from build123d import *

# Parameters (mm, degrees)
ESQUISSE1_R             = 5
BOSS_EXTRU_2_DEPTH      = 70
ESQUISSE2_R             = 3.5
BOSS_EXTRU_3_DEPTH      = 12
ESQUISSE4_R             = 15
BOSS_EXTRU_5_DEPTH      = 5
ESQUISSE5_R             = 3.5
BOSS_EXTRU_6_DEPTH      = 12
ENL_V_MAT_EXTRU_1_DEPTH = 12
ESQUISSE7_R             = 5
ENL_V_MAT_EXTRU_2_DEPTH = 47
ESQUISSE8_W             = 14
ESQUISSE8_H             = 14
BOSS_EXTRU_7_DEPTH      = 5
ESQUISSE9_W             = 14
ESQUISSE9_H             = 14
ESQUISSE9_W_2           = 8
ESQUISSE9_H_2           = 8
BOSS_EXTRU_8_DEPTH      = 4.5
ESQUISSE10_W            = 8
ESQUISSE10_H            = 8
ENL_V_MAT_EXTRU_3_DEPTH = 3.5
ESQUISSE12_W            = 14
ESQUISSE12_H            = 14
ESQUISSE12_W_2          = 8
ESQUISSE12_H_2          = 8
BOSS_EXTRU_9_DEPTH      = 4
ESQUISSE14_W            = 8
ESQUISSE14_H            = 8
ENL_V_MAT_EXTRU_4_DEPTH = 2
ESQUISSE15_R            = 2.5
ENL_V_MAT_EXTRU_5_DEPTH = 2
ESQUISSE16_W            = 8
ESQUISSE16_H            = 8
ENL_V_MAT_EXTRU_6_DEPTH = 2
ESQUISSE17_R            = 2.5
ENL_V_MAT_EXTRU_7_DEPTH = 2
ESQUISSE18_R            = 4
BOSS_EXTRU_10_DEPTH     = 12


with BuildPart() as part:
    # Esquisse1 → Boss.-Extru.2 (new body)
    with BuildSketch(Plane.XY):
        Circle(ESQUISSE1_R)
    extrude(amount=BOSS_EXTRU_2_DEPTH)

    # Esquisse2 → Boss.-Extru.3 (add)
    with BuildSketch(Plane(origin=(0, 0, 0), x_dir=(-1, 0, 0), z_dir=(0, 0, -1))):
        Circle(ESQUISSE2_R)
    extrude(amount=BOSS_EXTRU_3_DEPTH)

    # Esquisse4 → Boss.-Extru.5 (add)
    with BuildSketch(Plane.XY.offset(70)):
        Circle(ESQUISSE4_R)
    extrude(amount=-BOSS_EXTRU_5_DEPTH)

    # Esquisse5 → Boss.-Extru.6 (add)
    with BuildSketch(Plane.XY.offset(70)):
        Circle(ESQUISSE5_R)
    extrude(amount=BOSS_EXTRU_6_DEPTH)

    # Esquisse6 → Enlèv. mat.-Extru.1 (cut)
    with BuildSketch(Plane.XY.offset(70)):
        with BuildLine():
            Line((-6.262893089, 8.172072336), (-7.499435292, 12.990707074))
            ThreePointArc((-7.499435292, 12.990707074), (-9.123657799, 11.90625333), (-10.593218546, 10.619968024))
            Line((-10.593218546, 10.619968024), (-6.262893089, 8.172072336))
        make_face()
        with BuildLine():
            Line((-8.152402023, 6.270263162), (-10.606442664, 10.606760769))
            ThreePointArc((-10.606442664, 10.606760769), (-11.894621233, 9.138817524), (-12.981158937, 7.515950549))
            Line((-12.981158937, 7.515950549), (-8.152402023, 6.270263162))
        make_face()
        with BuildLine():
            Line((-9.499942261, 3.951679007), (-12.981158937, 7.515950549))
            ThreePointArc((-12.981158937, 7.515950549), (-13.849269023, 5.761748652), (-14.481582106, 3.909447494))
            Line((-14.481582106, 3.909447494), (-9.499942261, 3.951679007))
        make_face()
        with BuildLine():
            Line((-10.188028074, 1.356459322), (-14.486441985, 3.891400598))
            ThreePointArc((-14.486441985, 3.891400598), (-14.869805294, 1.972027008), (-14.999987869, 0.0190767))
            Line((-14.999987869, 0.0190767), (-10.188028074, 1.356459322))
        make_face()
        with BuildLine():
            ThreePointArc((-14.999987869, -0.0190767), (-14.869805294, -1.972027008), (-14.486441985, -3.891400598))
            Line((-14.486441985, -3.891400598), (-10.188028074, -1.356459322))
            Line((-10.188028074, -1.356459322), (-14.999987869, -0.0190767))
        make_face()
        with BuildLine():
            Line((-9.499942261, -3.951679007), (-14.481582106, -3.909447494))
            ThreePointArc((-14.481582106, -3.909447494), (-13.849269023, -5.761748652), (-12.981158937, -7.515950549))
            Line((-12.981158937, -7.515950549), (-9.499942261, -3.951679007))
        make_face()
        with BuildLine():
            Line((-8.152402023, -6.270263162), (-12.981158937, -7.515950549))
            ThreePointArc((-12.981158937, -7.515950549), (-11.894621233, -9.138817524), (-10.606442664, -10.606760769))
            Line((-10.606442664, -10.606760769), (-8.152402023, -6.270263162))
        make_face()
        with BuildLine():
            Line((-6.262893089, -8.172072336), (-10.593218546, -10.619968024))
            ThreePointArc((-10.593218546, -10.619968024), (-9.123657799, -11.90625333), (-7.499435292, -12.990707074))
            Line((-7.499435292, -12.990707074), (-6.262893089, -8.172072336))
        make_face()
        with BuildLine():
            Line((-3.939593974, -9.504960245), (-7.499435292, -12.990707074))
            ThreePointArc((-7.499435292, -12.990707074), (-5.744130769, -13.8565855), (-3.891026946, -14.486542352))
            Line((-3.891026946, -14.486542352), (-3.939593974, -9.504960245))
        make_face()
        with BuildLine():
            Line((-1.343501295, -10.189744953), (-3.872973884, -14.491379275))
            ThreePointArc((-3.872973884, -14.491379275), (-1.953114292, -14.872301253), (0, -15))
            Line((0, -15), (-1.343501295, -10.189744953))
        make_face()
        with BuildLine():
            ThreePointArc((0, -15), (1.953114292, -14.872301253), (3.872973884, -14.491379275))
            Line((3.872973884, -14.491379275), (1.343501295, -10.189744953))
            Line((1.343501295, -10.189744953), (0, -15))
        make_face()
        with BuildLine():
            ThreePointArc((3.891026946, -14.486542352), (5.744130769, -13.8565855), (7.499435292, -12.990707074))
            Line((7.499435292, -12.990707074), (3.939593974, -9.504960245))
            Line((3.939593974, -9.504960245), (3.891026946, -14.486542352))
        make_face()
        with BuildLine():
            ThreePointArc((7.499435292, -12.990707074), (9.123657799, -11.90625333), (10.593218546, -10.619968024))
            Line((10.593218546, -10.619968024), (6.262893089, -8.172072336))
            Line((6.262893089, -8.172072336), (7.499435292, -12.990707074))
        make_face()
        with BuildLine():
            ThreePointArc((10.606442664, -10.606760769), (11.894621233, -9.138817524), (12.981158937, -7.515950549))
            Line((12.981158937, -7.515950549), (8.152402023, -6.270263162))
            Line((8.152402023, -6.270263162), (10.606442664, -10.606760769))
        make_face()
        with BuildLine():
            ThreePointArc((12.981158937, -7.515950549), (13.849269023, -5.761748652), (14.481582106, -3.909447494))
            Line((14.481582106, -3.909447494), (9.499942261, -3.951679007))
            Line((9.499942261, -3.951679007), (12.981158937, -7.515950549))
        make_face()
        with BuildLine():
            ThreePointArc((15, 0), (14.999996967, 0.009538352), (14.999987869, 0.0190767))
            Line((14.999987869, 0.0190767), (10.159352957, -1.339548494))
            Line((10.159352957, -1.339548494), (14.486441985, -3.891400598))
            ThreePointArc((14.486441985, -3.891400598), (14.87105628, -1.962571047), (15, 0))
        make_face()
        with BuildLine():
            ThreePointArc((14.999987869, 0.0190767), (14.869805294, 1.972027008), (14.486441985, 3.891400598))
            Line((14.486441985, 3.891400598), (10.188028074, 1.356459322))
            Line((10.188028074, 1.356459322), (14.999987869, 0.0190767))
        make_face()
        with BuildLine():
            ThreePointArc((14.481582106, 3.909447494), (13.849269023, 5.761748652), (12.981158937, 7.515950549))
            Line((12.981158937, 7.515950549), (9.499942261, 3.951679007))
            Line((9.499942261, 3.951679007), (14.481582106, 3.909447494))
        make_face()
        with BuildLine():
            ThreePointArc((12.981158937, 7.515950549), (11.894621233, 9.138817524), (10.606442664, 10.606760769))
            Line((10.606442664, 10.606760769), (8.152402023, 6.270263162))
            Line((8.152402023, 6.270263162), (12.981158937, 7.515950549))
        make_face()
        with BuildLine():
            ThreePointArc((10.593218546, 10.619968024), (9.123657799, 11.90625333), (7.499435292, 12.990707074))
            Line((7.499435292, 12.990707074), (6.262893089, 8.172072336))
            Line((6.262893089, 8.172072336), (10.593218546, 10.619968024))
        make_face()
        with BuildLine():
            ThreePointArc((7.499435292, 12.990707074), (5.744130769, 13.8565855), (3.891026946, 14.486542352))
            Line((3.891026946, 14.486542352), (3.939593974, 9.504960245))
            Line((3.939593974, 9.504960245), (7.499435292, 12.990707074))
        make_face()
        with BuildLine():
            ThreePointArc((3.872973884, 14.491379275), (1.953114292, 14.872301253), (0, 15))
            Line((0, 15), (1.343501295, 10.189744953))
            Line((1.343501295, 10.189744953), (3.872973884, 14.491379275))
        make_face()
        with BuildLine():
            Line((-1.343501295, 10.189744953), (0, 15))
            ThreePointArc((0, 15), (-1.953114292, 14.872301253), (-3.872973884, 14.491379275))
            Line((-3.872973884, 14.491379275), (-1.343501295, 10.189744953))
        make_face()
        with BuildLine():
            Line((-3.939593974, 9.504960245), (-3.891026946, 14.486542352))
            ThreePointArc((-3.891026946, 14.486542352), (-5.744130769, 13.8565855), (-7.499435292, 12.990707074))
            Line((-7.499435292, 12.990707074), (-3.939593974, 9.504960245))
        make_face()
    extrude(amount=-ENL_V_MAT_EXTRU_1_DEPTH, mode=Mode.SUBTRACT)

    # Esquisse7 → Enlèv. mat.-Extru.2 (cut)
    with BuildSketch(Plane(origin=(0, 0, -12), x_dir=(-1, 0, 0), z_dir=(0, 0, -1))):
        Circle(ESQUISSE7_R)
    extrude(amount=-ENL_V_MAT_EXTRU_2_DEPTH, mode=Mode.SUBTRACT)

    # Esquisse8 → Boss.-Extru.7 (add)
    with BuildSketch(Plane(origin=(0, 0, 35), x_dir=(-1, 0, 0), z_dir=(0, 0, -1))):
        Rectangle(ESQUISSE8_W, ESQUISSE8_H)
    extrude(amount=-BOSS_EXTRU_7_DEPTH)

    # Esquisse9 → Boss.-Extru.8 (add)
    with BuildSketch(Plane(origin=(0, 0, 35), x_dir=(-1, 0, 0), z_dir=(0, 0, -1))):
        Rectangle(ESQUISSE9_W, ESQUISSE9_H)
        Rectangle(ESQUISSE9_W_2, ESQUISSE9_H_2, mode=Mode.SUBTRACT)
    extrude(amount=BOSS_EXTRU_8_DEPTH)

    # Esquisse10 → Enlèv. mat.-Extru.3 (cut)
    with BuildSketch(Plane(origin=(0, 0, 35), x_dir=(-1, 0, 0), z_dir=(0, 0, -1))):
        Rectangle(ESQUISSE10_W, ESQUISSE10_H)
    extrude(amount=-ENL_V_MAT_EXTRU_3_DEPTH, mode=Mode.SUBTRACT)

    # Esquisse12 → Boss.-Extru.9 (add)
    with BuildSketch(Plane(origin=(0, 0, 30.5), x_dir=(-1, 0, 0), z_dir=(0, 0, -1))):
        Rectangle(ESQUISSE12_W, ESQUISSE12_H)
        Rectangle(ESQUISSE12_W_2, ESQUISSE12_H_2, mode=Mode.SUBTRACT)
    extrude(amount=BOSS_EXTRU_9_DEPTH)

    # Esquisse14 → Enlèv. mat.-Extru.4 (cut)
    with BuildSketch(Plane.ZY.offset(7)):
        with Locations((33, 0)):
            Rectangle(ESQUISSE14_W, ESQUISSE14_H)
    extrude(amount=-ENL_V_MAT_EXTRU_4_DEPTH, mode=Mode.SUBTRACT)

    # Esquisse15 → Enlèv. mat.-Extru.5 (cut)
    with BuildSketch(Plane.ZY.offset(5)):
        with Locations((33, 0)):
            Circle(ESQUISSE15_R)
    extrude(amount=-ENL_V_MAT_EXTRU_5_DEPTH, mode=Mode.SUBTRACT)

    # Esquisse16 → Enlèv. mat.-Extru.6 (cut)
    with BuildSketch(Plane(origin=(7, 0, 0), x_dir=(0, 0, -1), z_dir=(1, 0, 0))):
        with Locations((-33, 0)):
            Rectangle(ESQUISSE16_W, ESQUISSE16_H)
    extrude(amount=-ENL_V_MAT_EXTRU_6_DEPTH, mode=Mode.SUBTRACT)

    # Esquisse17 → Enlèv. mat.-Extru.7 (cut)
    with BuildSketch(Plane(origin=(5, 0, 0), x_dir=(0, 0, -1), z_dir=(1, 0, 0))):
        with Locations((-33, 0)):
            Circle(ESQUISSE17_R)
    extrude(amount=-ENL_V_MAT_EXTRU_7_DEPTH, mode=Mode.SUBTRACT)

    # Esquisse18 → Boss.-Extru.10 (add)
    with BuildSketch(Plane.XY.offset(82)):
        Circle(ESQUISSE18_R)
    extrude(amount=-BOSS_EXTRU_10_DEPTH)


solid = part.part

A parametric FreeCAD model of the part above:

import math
import FreeCAD as App
import Part
import Sketcher
from FreeCAD import Vector


def add_polygon(sketch, points):
    """Adds a closed chain of lines whose ends are joined by coincident constraints."""
    first, n = sketch.GeometryCount, len(points)
    for a, b in zip(points, points[1:] + points[:1]):
        sketch.addGeometry(Part.LineSegment(App.Vector(*a, 0), App.Vector(*b, 0)), False)
    for i in range(n):
        sketch.addConstraint(Sketcher.Constraint("Coincident", first + i, 2, first + (i + 1) % n, 1))

doc = App.newDocument("Part")
body = doc.addObject("PartDesign::Body", "Body")

# Sketch on XY plane
sketch1 = doc.addObject("Sketcher::SketchObject", "Sketch")
body.addObject(sketch1)
sketch1.AttachmentSupport = (doc.XY_Plane, [""])
sketch1.MapMode = "FlatFace"
sketch1.addGeometry(Part.Circle(Vector(0, 0, 0), Vector(0, 0, 1), 5), False)
sketch1.addConstraint(Sketcher.Constraint("Coincident", 0, 3, -1, 1))
sketch1.addConstraint(Sketcher.Constraint("Diameter", 0, 10.0))
pad1 = doc.addObject("PartDesign::Pad", "Pad")
body.addObject(pad1)
pad1.Profile = sketch1
pad1.Length = 70

# Sketch on XY plane
sketch2 = doc.addObject("Sketcher::SketchObject", "Sketch001")
body.addObject(sketch2)
sketch2.AttachmentSupport = (doc.XY_Plane, [""])
sketch2.MapMode = "FlatFace"
sketch2.addGeometry(Part.Circle(Vector(0, 0, 0), Vector(0, 0, 1), 3.5), False)
sketch2.addConstraint(Sketcher.Constraint("Coincident", 0, 3, -1, 1))
sketch2.addConstraint(Sketcher.Constraint("Diameter", 0, 7.0))
pad2 = doc.addObject("PartDesign::Pad", "Pad001")
body.addObject(pad2)
pad2.Profile = sketch2
pad2.Length = 12
pad2.Reversed = True

# Sketch on XY plane
sketch3 = doc.addObject("Sketcher::SketchObject", "Sketch002")
body.addObject(sketch3)
sketch3.AttachmentSupport = (doc.XY_Plane, [""])
sketch3.MapMode = "FlatFace"
sketch3.AttachmentOffset = App.Placement(Vector(0, 0, 70), App.Rotation())
sketch3.addGeometry(Part.Circle(Vector(0, 0, 0), Vector(0, 0, 1), 15), False)
sketch3.addConstraint(Sketcher.Constraint("Coincident", 0, 3, -1, 1))
sketch3.addConstraint(Sketcher.Constraint("Diameter", 0, 30.0))
pad3 = doc.addObject("PartDesign::Pad", "Pad002")
body.addObject(pad3)
pad3.Profile = sketch3
pad3.Length = 5
pad3.Reversed = True

# Sketch on XY plane
sketch4 = doc.addObject("Sketcher::SketchObject", "Sketch003")
body.addObject(sketch4)
sketch4.AttachmentSupport = (doc.XY_Plane, [""])
sketch4.MapMode = "FlatFace"
sketch4.AttachmentOffset = App.Placement(Vector(0, 0, 70), App.Rotation())
sketch4.addGeometry(Part.Circle(Vector(0, 0, 0), Vector(0, 0, 1), 3.5), False)
sketch4.addConstraint(Sketcher.Constraint("Coincident", 0, 3, -1, 1))
sketch4.addConstraint(Sketcher.Constraint("Diameter", 0, 7.0))
pad4 = doc.addObject("PartDesign::Pad", "Pad003")
body.addObject(pad4)
pad4.Profile = sketch4
pad4.Length = 12

# Sketch on XY plane
sketch5 = doc.addObject("Sketcher::SketchObject", "Sketch004")
body.addObject(sketch5)
sketch5.AttachmentSupport = (doc.XY_Plane, [""])
sketch5.MapMode = "FlatFace"
sketch5.AttachmentOffset = App.Placement(Vector(0, 0, 70), App.Rotation())
sketch5.addGeometry(Part.LineSegment(Vector(-6.263, 8.172, 0), Vector(-7.499, 12.991, 0)), False)
sketch5.addGeometry(Part.ArcOfCircle(Part.Circle(Vector(0, 0, 0), Vector(0, 0, 1), 15), math.radians(120), math.radians(134.93)), False)
sketch5.addGeometry(Part.LineSegment(Vector(-10.593, 10.62, 0), Vector(-6.263, 8.172, 0)), False)
sketch5.addGeometry(Part.LineSegment(Vector(-8.152, 6.27, 0), Vector(-10.606, 10.607, 0)), False)
sketch5.addGeometry(Part.ArcOfCircle(Part.Circle(Vector(0, 0, 0), Vector(0, 0, 1), 15), math.radians(135), math.radians(149.93)), False)
sketch5.addGeometry(Part.LineSegment(Vector(-12.981, 7.516, 0), Vector(-8.152, 6.27, 0)), False)
sketch5.addGeometry(Part.LineSegment(Vector(-9.5, 3.952, 0), Vector(-12.981, 7.516, 0)), False)
sketch5.addGeometry(Part.ArcOfCircle(Part.Circle(Vector(0, 0, 0), Vector(0, 0, 1), 15), math.radians(149.93), math.radians(164.89)), False)
sketch5.addGeometry(Part.LineSegment(Vector(-14.482, 3.909, 0), Vector(-9.5, 3.952, 0)), False)
sketch5.addGeometry(Part.LineSegment(Vector(-10.188, 1.356, 0), Vector(-14.486, 3.891, 0)), False)
sketch5.addGeometry(Part.ArcOfCircle(Part.Circle(Vector(0, 0, 0), Vector(0, 0, 1), 15), math.radians(164.96), math.radians(179.93)), False)
sketch5.addGeometry(Part.LineSegment(Vector(-15, 0.019, 0), Vector(-10.188, 1.356, 0)), False)
sketch5.addGeometry(Part.ArcOfCircle(Part.Circle(Vector(0, 0, 0), Vector(0, 0, 1), 15), math.radians(-179.93), math.radians(-164.96)), False)
sketch5.addGeometry(Part.LineSegment(Vector(-14.486, -3.891, 0), Vector(-10.188, -1.356, 0)), False)
sketch5.addGeometry(Part.LineSegment(Vector(-10.188, -1.356, 0), Vector(-15, -0.019, 0)), False)
sketch5.addGeometry(Part.LineSegment(Vector(-9.5, -3.952, 0), Vector(-14.482, -3.909, 0)), False)
sketch5.addGeometry(Part.ArcOfCircle(Part.Circle(Vector(0, 0, 0), Vector(0, 0, 1), 15), math.radians(-164.89), math.radians(-149.93)), False)
sketch5.addGeometry(Part.LineSegment(Vector(-12.981, -7.516, 0), Vector(-9.5, -3.952, 0)), False)
sketch5.addGeometry(Part.LineSegment(Vector(-8.152, -6.27, 0), Vector(-12.981, -7.516, 0)), False)
sketch5.addGeometry(Part.ArcOfCircle(Part.Circle(Vector(0, 0, 0), Vector(0, 0, 1), 15), math.radians(-149.93), math.radians(-135)), False)
sketch5.addGeometry(Part.LineSegment(Vector(-10.606, -10.607, 0), Vector(-8.152, -6.27, 0)), False)
sketch5.addGeometry(Part.LineSegment(Vector(-6.263, -8.172, 0), Vector(-10.593, -10.62, 0)), False)
sketch5.addGeometry(Part.ArcOfCircle(Part.Circle(Vector(0, 0, 0), Vector(0, 0, 1), 15), math.radians(-134.93), math.radians(-120)), False)
sketch5.addGeometry(Part.LineSegment(Vector(-7.499, -12.991, 0), Vector(-6.263, -8.172, 0)), False)
sketch5.addGeometry(Part.LineSegment(Vector(-3.94, -9.505, 0), Vector(-7.499, -12.991, 0)), False)
sketch5.addGeometry(Part.ArcOfCircle(Part.Circle(Vector(0, 0, 0), Vector(0, 0, 1), 15), math.radians(-120), math.radians(-105.03)), False)
sketch5.addGeometry(Part.LineSegment(Vector(-3.891, -14.487, 0), Vector(-3.94, -9.505, 0)), False)
sketch5.addGeometry(Part.LineSegment(Vector(-1.344, -10.19, 0), Vector(-3.873, -14.491, 0)), False)
sketch5.addGeometry(Part.ArcOfCircle(Part.Circle(Vector(0, 0, 0), Vector(0, 0, 1), 15), math.radians(-104.96), math.radians(-90)), False)
sketch5.addGeometry(Part.LineSegment(Vector(0, -15, 0), Vector(-1.344, -10.19, 0)), False)
sketch5.addGeometry(Part.ArcOfCircle(Part.Circle(Vector(0, 0, 0), Vector(0, 0, 1), 15), math.radians(-90), math.radians(-75.04)), False)
sketch5.addGeometry(Part.LineSegment(Vector(3.873, -14.491, 0), Vector(1.344, -10.19, 0)), False)
sketch5.addGeometry(Part.LineSegment(Vector(1.344, -10.19, 0), Vector(0, -15, 0)), False)
sketch5.addGeometry(Part.ArcOfCircle(Part.Circle(Vector(0, 0, 0), Vector(0, 0, 1), 15), math.radians(-74.97), math.radians(-60)), False)
sketch5.addGeometry(Part.LineSegment(Vector(7.499, -12.991, 0), Vector(3.94, -9.505, 0)), False)
sketch5.addGeometry(Part.LineSegment(Vector(3.94, -9.505, 0), Vector(3.891, -14.487, 0)), False)
sketch5.addGeometry(Part.ArcOfCircle(Part.Circle(Vector(0, 0, 0), Vector(0, 0, 1), 15), math.radians(-60), math.radians(-45.07)), False)
sketch5.addGeometry(Part.LineSegment(Vector(10.593, -10.62, 0), Vector(6.263, -8.172, 0)), False)
sketch5.addGeometry(Part.LineSegment(Vector(6.263, -8.172, 0), Vector(7.499, -12.991, 0)), False)
sketch5.addGeometry(Part.ArcOfCircle(Part.Circle(Vector(0, 0, 0), Vector(0, 0, 1), 15), math.radians(-45), math.radians(-30.07)), False)
sketch5.addGeometry(Part.LineSegment(Vector(12.981, -7.516, 0), Vector(8.152, -6.27, 0)), False)
sketch5.addGeometry(Part.LineSegment(Vector(8.152, -6.27, 0), Vector(10.606, -10.607, 0)), False)
sketch5.addGeometry(Part.ArcOfCircle(Part.Circle(Vector(0, 0, 0), Vector(0, 0, 1), 15), math.radians(-30.07), math.radians(-15.11)), False)
sketch5.addGeometry(Part.LineSegment(Vector(14.482, -3.909, 0), Vector(9.5, -3.952, 0)), False)
sketch5.addGeometry(Part.LineSegment(Vector(9.5, -3.952, 0), Vector(12.981, -7.516, 0)), False)
sketch5.addGeometry(Part.ArcOfCircle(Part.Circle(Vector(-0.001, 0, 0), Vector(0, 0, 1), 15.001), math.radians(0), math.radians(0.07)), False)
sketch5.addGeometry(Part.LineSegment(Vector(15, 0.019, 0), Vector(10.159, -1.34, 0)), False)
sketch5.addGeometry(Part.LineSegment(Vector(10.159, -1.34, 0), Vector(14.486, -3.891, 0)), False)
sketch5.addGeometry(Part.ArcOfCircle(Part.Circle(Vector(0, 0, 0), Vector(0, 0, 1), 15), math.radians(-15.04), math.radians(0)), False)
sketch5.addGeometry(Part.ArcOfCircle(Part.Circle(Vector(0, 0, 0), Vector(0, 0, 1), 15), math.radians(0.07), math.radians(15.04)), False)
sketch5.addGeometry(Part.LineSegment(Vector(14.486, 3.891, 0), Vector(10.188, 1.356, 0)), False)
sketch5.addGeometry(Part.LineSegment(Vector(10.188, 1.356, 0), Vector(15, 0.019, 0)), False)
sketch5.addGeometry(Part.ArcOfCircle(Part.Circle(Vector(0, 0, 0), Vector(0, 0, 1), 15), math.radians(15.11), math.radians(30.07)), False)
sketch5.addGeometry(Part.LineSegment(Vector(12.981, 7.516, 0), Vector(9.5, 3.952, 0)), False)
sketch5.addGeometry(Part.LineSegment(Vector(9.5, 3.952, 0), Vector(14.482, 3.909, 0)), False)
sketch5.addGeometry(Part.ArcOfCircle(Part.Circle(Vector(0, 0, 0), Vector(0, 0, 1), 15), math.radians(30.07), math.radians(45)), False)
sketch5.addGeometry(Part.LineSegment(Vector(10.606, 10.607, 0), Vector(8.152, 6.27, 0)), False)
sketch5.addGeometry(Part.LineSegment(Vector(8.152, 6.27, 0), Vector(12.981, 7.516, 0)), False)
sketch5.addGeometry(Part.ArcOfCircle(Part.Circle(Vector(0, 0, 0), Vector(0, 0, 1), 15), math.radians(45.07), math.radians(60)), False)
sketch5.addGeometry(Part.LineSegment(Vector(7.499, 12.991, 0), Vector(6.263, 8.172, 0)), False)
sketch5.addGeometry(Part.LineSegment(Vector(6.263, 8.172, 0), Vector(10.593, 10.62, 0)), False)
sketch5.addGeometry(Part.ArcOfCircle(Part.Circle(Vector(0, 0, 0), Vector(0, 0, 1), 15), math.radians(60), math.radians(74.97)), False)
sketch5.addGeometry(Part.LineSegment(Vector(3.891, 14.487, 0), Vector(3.94, 9.505, 0)), False)
sketch5.addGeometry(Part.LineSegment(Vector(3.94, 9.505, 0), Vector(7.499, 12.991, 0)), False)
sketch5.addGeometry(Part.ArcOfCircle(Part.Circle(Vector(0, 0, 0), Vector(0, 0, 1), 15), math.radians(75.04), math.radians(90)), False)
sketch5.addGeometry(Part.LineSegment(Vector(0, 15, 0), Vector(1.344, 10.19, 0)), False)
sketch5.addGeometry(Part.LineSegment(Vector(1.344, 10.19, 0), Vector(3.873, 14.491, 0)), False)
sketch5.addGeometry(Part.LineSegment(Vector(-1.344, 10.19, 0), Vector(0, 15, 0)), False)
sketch5.addGeometry(Part.ArcOfCircle(Part.Circle(Vector(0, 0, 0), Vector(0, 0, 1), 15), math.radians(90), math.radians(104.96)), False)
sketch5.addGeometry(Part.LineSegment(Vector(-3.873, 14.491, 0), Vector(-1.344, 10.19, 0)), False)
sketch5.addGeometry(Part.LineSegment(Vector(-3.94, 9.505, 0), Vector(-3.891, 14.487, 0)), False)
sketch5.addGeometry(Part.ArcOfCircle(Part.Circle(Vector(0, 0, 0), Vector(0, 0, 1), 15), math.radians(105.03), math.radians(120)), False)
sketch5.addGeometry(Part.LineSegment(Vector(-7.499, 12.991, 0), Vector(-3.94, 9.505, 0)), False)
sketch5.addConstraint(Sketcher.Constraint("Coincident", 0, 2, 1, 1))
sketch5.addConstraint(Sketcher.Constraint("Coincident", 1, 2, 2, 1))
sketch5.addConstraint(Sketcher.Constraint("Coincident", 2, 2, 0, 1))
sketch5.addConstraint(Sketcher.Constraint("Coincident", 3, 2, 4, 1))
sketch5.addConstraint(Sketcher.Constraint("Coincident", 4, 2, 5, 1))
sketch5.addConstraint(Sketcher.Constraint("Coincident", 5, 2, 3, 1))
sketch5.addConstraint(Sketcher.Constraint("Coincident", 6, 2, 7, 1))
sketch5.addConstraint(Sketcher.Constraint("Coincident", 7, 2, 8, 1))
sketch5.addConstraint(Sketcher.Constraint("Coincident", 8, 2, 6, 1))
sketch5.addConstraint(Sketcher.Constraint("Coincident", 9, 2, 10, 1))
sketch5.addConstraint(Sketcher.Constraint("Coincident", 10, 2, 11, 1))
sketch5.addConstraint(Sketcher.Constraint("Coincident", 11, 2, 9, 1))
sketch5.addConstraint(Sketcher.Constraint("Coincident", 12, 2, 13, 1))
sketch5.addConstraint(Sketcher.Constraint("Coincident", 13, 2, 14, 1))
sketch5.addConstraint(Sketcher.Constraint("Coincident", 14, 2, 12, 1))
sketch5.addConstraint(Sketcher.Constraint("Coincident", 15, 2, 16, 1))
sketch5.addConstraint(Sketcher.Constraint("Coincident", 16, 2, 17, 1))
sketch5.addConstraint(Sketcher.Constraint("Coincident", 17, 2, 15, 1))
sketch5.addConstraint(Sketcher.Constraint("Coincident", 18, 2, 19, 1))
sketch5.addConstraint(Sketcher.Constraint("Coincident", 19, 2, 20, 1))
sketch5.addConstraint(Sketcher.Constraint("Coincident", 20, 2, 18, 1))
sketch5.addConstraint(Sketcher.Constraint("Coincident", 21, 2, 22, 1))
sketch5.addConstraint(Sketcher.Constraint("Coincident", 22, 2, 23, 1))
sketch5.addConstraint(Sketcher.Constraint("Coincident", 23, 2, 21, 1))
sketch5.addConstraint(Sketcher.Constraint("Coincident", 24, 2, 25, 1))
sketch5.addConstraint(Sketcher.Constraint("Coincident", 25, 2, 26, 1))
sketch5.addConstraint(Sketcher.Constraint("Coincident", 26, 2, 24, 1))
sketch5.addConstraint(Sketcher.Constraint("Coincident", 27, 2, 28, 1))
sketch5.addConstraint(Sketcher.Constraint("Coincident", 28, 2, 29, 1))
sketch5.addConstraint(Sketcher.Constraint("Coincident", 29, 2, 27, 1))
sketch5.addConstraint(Sketcher.Constraint("Coincident", 30, 2, 31, 1))
sketch5.addConstraint(Sketcher.Constraint("Coincident", 31, 2, 32, 1))
sketch5.addConstraint(Sketcher.Constraint("Coincident", 32, 2, 30, 1))
sketch5.addConstraint(Sketcher.Constraint("Coincident", 33, 2, 34, 1))
sketch5.addConstraint(Sketcher.Constraint("Coincident", 34, 2, 35, 1))
sketch5.addConstraint(Sketcher.Constraint("Coincident", 35, 2, 33, 1))
sketch5.addConstraint(Sketcher.Constraint("Coincident", 36, 2, 37, 1))
sketch5.addConstraint(Sketcher.Constraint("Coincident", 37, 2, 38, 1))
sketch5.addConstraint(Sketcher.Constraint("Coincident", 38, 2, 36, 1))
sketch5.addConstraint(Sketcher.Constraint("Coincident", 39, 2, 40, 1))
sketch5.addConstraint(Sketcher.Constraint("Coincident", 40, 2, 41, 1))
sketch5.addConstraint(Sketcher.Constraint("Coincident", 41, 2, 39, 1))
sketch5.addConstraint(Sketcher.Constraint("Coincident", 42, 2, 43, 1))
sketch5.addConstraint(Sketcher.Constraint("Coincident", 43, 2, 44, 1))
sketch5.addConstraint(Sketcher.Constraint("Coincident", 44, 2, 42, 1))
sketch5.addConstraint(Sketcher.Constraint("Coincident", 45, 2, 46, 1))
sketch5.addConstraint(Sketcher.Constraint("Coincident", 46, 2, 47, 1))
sketch5.addConstraint(Sketcher.Constraint("Coincident", 47, 2, 48, 1))
sketch5.addConstraint(Sketcher.Constraint("Tangent", 48, 2, 45, 1))
sketch5.addConstraint(Sketcher.Constraint("Coincident", 49, 2, 50, 1))
sketch5.addConstraint(Sketcher.Constraint("Coincident", 50, 2, 51, 1))
sketch5.addConstraint(Sketcher.Constraint("Coincident", 51, 2, 49, 1))
sketch5.addConstraint(Sketcher.Constraint("Coincident", 52, 2, 53, 1))
sketch5.addConstraint(Sketcher.Constraint("Coincident", 53, 2, 54, 1))
sketch5.addConstraint(Sketcher.Constraint("Coincident", 54, 2, 52, 1))
sketch5.addConstraint(Sketcher.Constraint("Coincident", 55, 2, 56, 1))
sketch5.addConstraint(Sketcher.Constraint("Coincident", 56, 2, 57, 1))
sketch5.addConstraint(Sketcher.Constraint("Coincident", 57, 2, 55, 1))
sketch5.addConstraint(Sketcher.Constraint("Coincident", 58, 2, 59, 1))
sketch5.addConstraint(Sketcher.Constraint("Coincident", 59, 2, 60, 1))
sketch5.addConstraint(Sketcher.Constraint("Coincident", 60, 2, 58, 1))
sketch5.addConstraint(Sketcher.Constraint("Coincident", 61, 2, 62, 1))
sketch5.addConstraint(Sketcher.Constraint("Coincident", 62, 2, 63, 1))
sketch5.addConstraint(Sketcher.Constraint("Coincident", 63, 2, 61, 1))
sketch5.addConstraint(Sketcher.Constraint("Coincident", 64, 2, 65, 1))
sketch5.addConstraint(Sketcher.Constraint("Coincident", 65, 2, 66, 1))
sketch5.addConstraint(Sketcher.Constraint("Coincident", 66, 2, 64, 1))
sketch5.addConstraint(Sketcher.Constraint("Coincident", 67, 2, 68, 1))
sketch5.addConstraint(Sketcher.Constraint("Coincident", 68, 2, 69, 1))
sketch5.addConstraint(Sketcher.Constraint("Coincident", 69, 2, 67, 1))
sketch5.addConstraint(Sketcher.Constraint("Coincident", 70, 2, 71, 1))
sketch5.addConstraint(Sketcher.Constraint("Coincident", 71, 2, 72, 1))
sketch5.addConstraint(Sketcher.Constraint("Coincident", 72, 2, 70, 1))
sketch5.addConstraint(Sketcher.Constraint("Coincident", 1, 3, -1, 1))
sketch5.addConstraint(Sketcher.Constraint("Coincident", 4, 3, -1, 1))
sketch5.addConstraint(Sketcher.Constraint("Coincident", 7, 3, -1, 1))
sketch5.addConstraint(Sketcher.Constraint("Coincident", 10, 3, -1, 1))
sketch5.addConstraint(Sketcher.Constraint("Coincident", 12, 3, -1, 1))
sketch5.addConstraint(Sketcher.Constraint("Coincident", 16, 3, -1, 1))
sketch5.addConstraint(Sketcher.Constraint("Coincident", 19, 3, -1, 1))
sketch5.addConstraint(Sketcher.Constraint("Coincident", 22, 3, -1, 1))
sketch5.addConstraint(Sketcher.Constraint("Coincident", 25, 3, -1, 1))
sketch5.addConstraint(Sketcher.Constraint("Coincident", 28, 3, -1, 1))
sketch5.addConstraint(Sketcher.Constraint("Coincident", 30, 3, -1, 1))
sketch5.addConstraint(Sketcher.Constraint("Coincident", 33, 3, -1, 1))
sketch5.addConstraint(Sketcher.Constraint("Coincident", 36, 3, -1, 1))
sketch5.addConstraint(Sketcher.Constraint("Coincident", 39, 3, -1, 1))
sketch5.addConstraint(Sketcher.Constraint("Coincident", 42, 3, -1, 1))
sketch5.addConstraint(Sketcher.Constraint("Coincident", 48, 3, -1, 1))
sketch5.addConstraint(Sketcher.Constraint("Coincident", 49, 3, -1, 1))
sketch5.addConstraint(Sketcher.Constraint("Coincident", 52, 3, -1, 1))
sketch5.addConstraint(Sketcher.Constraint("Coincident", 55, 3, -1, 1))
sketch5.addConstraint(Sketcher.Constraint("Coincident", 58, 3, -1, 1))
sketch5.addConstraint(Sketcher.Constraint("Coincident", 61, 3, -1, 1))
sketch5.addConstraint(Sketcher.Constraint("Coincident", 64, 3, -1, 1))
sketch5.addConstraint(Sketcher.Constraint("Coincident", 68, 3, -1, 1))
sketch5.addConstraint(Sketcher.Constraint("Coincident", 71, 3, -1, 1))
sketch5.addConstraint(Sketcher.Constraint("Coincident", 6, 2, 4, 2))
sketch5.addConstraint(Sketcher.Constraint("Coincident", 18, 2, 16, 2))
sketch5.addConstraint(Sketcher.Constraint("Coincident", 24, 2, 22, 2))
sketch5.addConstraint(Sketcher.Constraint("Coincident", 32, 2, 28, 2))
sketch5.addConstraint(Sketcher.Constraint("Coincident", 38, 2, 33, 2))
sketch5.addConstraint(Sketcher.Constraint("Coincident", 44, 2, 39, 2))
sketch5.addConstraint(Sketcher.Constraint("Coincident", 51, 2, 45, 2))
sketch5.addConstraint(Sketcher.Constraint("Coincident", 57, 2, 52, 2))
sketch5.addConstraint(Sketcher.Constraint("Coincident", 63, 2, 58, 2))
sketch5.addConstraint(Sketcher.Constraint("Coincident", 67, 2, 64, 2))
sketch5.addConstraint(Sketcher.Constraint("Coincident", 71, 2, 0, 2))
sketch5.addConstraint(Sketcher.Constraint("Equal", 1, 4))
sketch5.addConstraint(Sketcher.Constraint("Equal", 7, 10))
sketch5.addConstraint(Sketcher.Constraint("Equal", 10, 12))
sketch5.addConstraint(Sketcher.Constraint("Equal", 12, 16))
sketch5.addConstraint(Sketcher.Constraint("Equal", 19, 22))
sketch5.addConstraint(Sketcher.Constraint("Equal", 25, 28))
sketch5.addConstraint(Sketcher.Constraint("Equal", 30, 33))
sketch5.addConstraint(Sketcher.Constraint("Equal", 36, 39))
sketch5.addConstraint(Sketcher.Constraint("Equal", 42, 48))
sketch5.addConstraint(Sketcher.Constraint("Equal", 49, 52))
sketch5.addConstraint(Sketcher.Constraint("Equal", 55, 58))
sketch5.addConstraint(Sketcher.Constraint("Equal", 61, 64))
sketch5.addConstraint(Sketcher.Constraint("Symmetric", 2, 2, 37, 2, -1, 1))
sketch5.addConstraint(Sketcher.Constraint("Symmetric", 5, 2, 40, 2, -1, 1))
sketch5.addConstraint(Sketcher.Constraint("Symmetric", 8, 2, 43, 2, -1, 1))
sketch5.addConstraint(Sketcher.Constraint("Symmetric", 13, 2, 50, 2, -1, 1))
sketch5.addConstraint(Sketcher.Constraint("Symmetric", 17, 2, 53, 2, -1, 1))
sketch5.addConstraint(Sketcher.Constraint("Symmetric", 20, 2, 56, 2, -1, 1))
sketch5.addConstraint(Sketcher.Constraint("Symmetric", 23, 2, 59, 2, -1, 1))
sketch5.addConstraint(Sketcher.Constraint("Symmetric", 26, 2, 62, 2, -1, 1))
sketch5.addConstraint(Sketcher.Constraint("Symmetric", 29, 2, 65, 2, -1, 1))
sketch5.addConstraint(Sketcher.Constraint("Symmetric", 31, 2, 69, 2, -1, 1))
sketch5.addConstraint(Sketcher.Constraint("Symmetric", 34, 2, 72, 2, -1, 1))
sketch5.addConstraint(Sketcher.Constraint("Symmetric", 29, 2, 31, 2, -2))
sketch5.addConstraint(Sketcher.Constraint("Symmetric", 26, 2, 34, 2, -2))
sketch5.addConstraint(Sketcher.Constraint("Symmetric", 23, 2, 37, 2, -2))
sketch5.addConstraint(Sketcher.Constraint("Symmetric", 20, 2, 40, 2, -2))
sketch5.addConstraint(Sketcher.Constraint("Symmetric", 17, 2, 43, 2, -2))
sketch5.addConstraint(Sketcher.Constraint("Symmetric", 11, 2, 50, 2, -2))
sketch5.addConstraint(Sketcher.Constraint("PointOnObject", 28, 2, -2))
sketch5.addConstraint(Sketcher.Constraint("PointOnObject", 48, 2, -1))
sketch5.addConstraint(Sketcher.Constraint("PointOnObject", 64, 2, -2))
sketch5.addConstraint(Sketcher.Constraint("Parallel", 2, 37))
sketch5.addConstraint(Sketcher.Constraint("Parallel", 0, 38))
sketch5.addConstraint(Sketcher.Constraint("Parallel", 5, 40))
sketch5.addConstraint(Sketcher.Constraint("Parallel", 3, 41))
sketch5.addConstraint(Sketcher.Constraint("Parallel", 8, 43))
sketch5.addConstraint(Sketcher.Constraint("Parallel", 9, 47))
sketch5.addConstraint(Sketcher.Constraint("Parallel", 13, 50))
sketch5.addConstraint(Sketcher.Constraint("Parallel", 14, 51))
sketch5.addConstraint(Sketcher.Constraint("Parallel", 17, 53))
sketch5.addConstraint(Sketcher.Constraint("Parallel", 15, 54))
sketch5.addConstraint(Sketcher.Constraint("Parallel", 20, 56))
sketch5.addConstraint(Sketcher.Constraint("Parallel", 23, 59))
sketch5.addConstraint(Sketcher.Constraint("Parallel", 21, 60))
sketch5.addConstraint(Sketcher.Constraint("Parallel", 26, 62))
sketch5.addConstraint(Sketcher.Constraint("Parallel", 27, 66))
sketch5.addConstraint(Sketcher.Constraint("Parallel", 31, 69))
sketch5.addConstraint(Sketcher.Constraint("Parallel", 35, 70))
sketch5.addConstraint(Sketcher.Constraint("Horizontal", 27, 2, 30, 2))
sketch5.addConstraint(Sketcher.Constraint("Horizontal", 24, 2, 33, 2))
sketch5.addConstraint(Sketcher.Constraint("Horizontal", 25, 2, 35, 2))
sketch5.addConstraint(Sketcher.Constraint("Horizontal", 21, 2, 36, 2))
sketch5.addConstraint(Sketcher.Constraint("Horizontal", 18, 2, 39, 2))
sketch5.addConstraint(Sketcher.Constraint("Horizontal", 19, 2, 41, 2))
sketch5.addConstraint(Sketcher.Constraint("Horizontal", 15, 2, 42, 2))
sketch5.addConstraint(Sketcher.Constraint("Horizontal", 10, 2, 45, 2))
sketch5.addConstraint(Sketcher.Constraint("Horizontal", 12, 2, 47, 2))
sketch5.addConstraint(Sketcher.Constraint("Horizontal", 9, 2, 49, 2))
sketch5.addConstraint(Sketcher.Constraint("Equal", 17, 24))
sketch5.addConstraint(Sketcher.Constraint("Equal", 15, 26))
sketch5.addConstraint(Sketcher.Constraint("Equal", 13, 27))
sketch5.addConstraint(Sketcher.Constraint("Equal", 14, 29))
sketch5.addConstraint(Sketcher.Constraint("Radius", 1, 15.0))
sketch5.addConstraint(Sketcher.Constraint("Radius", 45, 15.000849))
sketch5.addConstraint(Sketcher.Constraint("DistanceY", -1, 1, 9, 2, 3.891401))
sketch5.addConstraint(Sketcher.Constraint("DistanceX", 29, 2, -1, 1, 1.343501))
sketch5.addConstraint(Sketcher.Constraint("Distance", 6, 4.982259))
sketch5.addConstraint(Sketcher.Constraint("Distance", 8, 4.981819))
sketch5.addConstraint(Sketcher.Constraint("Distance", 9, 4.990219))
sketch5.addConstraint(Sketcher.Constraint("Distance", 11, 4.994352))
sketch5.addConstraint(Sketcher.Constraint("Distance", 47, 5.02351))
sketch5.addConstraint(Sketcher.Constraint("DistanceX", 1, 2, -1, 1, 10.593219))
sketch5.addConstraint(Sketcher.Constraint("DistanceY", -1, 1, 3, 2, 10.606761))
sketch5.addConstraint(Sketcher.Constraint("DistanceX", 4, 2, -1, 1, 12.981159))
sketch5.addConstraint(Sketcher.Constraint("DistanceY", -1, 1, 8, 2, 3.951679))
sketch5.addConstraint(Sketcher.Constraint("DistanceX", 11, 2, -1, 1, 10.188028))
sketch5.addConstraint(Sketcher.Constraint("DistanceY", 26, 2, -1, 1, 9.50496))
sketch5.addConstraint(Sketcher.Constraint("Distance", 0, 4.974764))
sketch5.addConstraint(Sketcher.Constraint("Distance", 2, 4.974325))
sketch5.addConstraint(Sketcher.Constraint("Distance", 3, 4.982723))
sketch5.addConstraint(Sketcher.Constraint("Distance", 5, 4.986846))
sketch5.addConstraint(Sketcher.Constraint("DistanceX", 0, 2, -1, 1, 7.499435))
pocket1 = doc.addObject("PartDesign::Pocket", "Pocket")
body.addObject(pocket1)
pocket1.Profile = sketch5
pocket1.Length = 12

# Sketch on XY plane
sketch6 = doc.addObject("Sketcher::SketchObject", "Sketch005")
body.addObject(sketch6)
sketch6.AttachmentSupport = (doc.XY_Plane, [""])
sketch6.MapMode = "FlatFace"
sketch6.AttachmentOffset = App.Placement(Vector(0, 0, -12), App.Rotation())
sketch6.addGeometry(Part.Circle(Vector(0, 0, 0), Vector(0, 0, 1), 5), False)
sketch6.addConstraint(Sketcher.Constraint("Coincident", 0, 3, -1, 1))
sketch6.addConstraint(Sketcher.Constraint("Diameter", 0, 10.0))
pocket2 = doc.addObject("PartDesign::Pocket", "Pocket001")
body.addObject(pocket2)
pocket2.Profile = sketch6
pocket2.Length = 47
pocket2.Reversed = True

# Sketch on XY plane
sketch7 = doc.addObject("Sketcher::SketchObject", "Sketch006")
body.addObject(sketch7)
sketch7.AttachmentSupport = (doc.XY_Plane, [""])
sketch7.MapMode = "FlatFace"
sketch7.AttachmentOffset = App.Placement(Vector(0, 0, 35), App.Rotation())
add_polygon(sketch7, [(7, 7), (7, -7), (-7, -7), (-7, 7)])  # lines 0-3
sketch7.addConstraint(Sketcher.Constraint("Vertical", 0))
sketch7.addConstraint(Sketcher.Constraint("Horizontal", 1))
sketch7.addConstraint(Sketcher.Constraint("Vertical", 2))
sketch7.addConstraint(Sketcher.Constraint("Horizontal", 3))
sketch7.addConstraint(Sketcher.Constraint("Symmetric", 0, 2, 2, 2, -1, 1))
sketch7.addConstraint(Sketcher.Constraint("Equal", 3, 0))
sketch7.addConstraint(Sketcher.Constraint("DistanceX", 1, 2, 1, 1, 14.0))
pad5 = doc.addObject("PartDesign::Pad", "Pad004")
body.addObject(pad5)
pad5.Profile = sketch7
pad5.Length = 5

# Sketch on XY plane
sketch8 = doc.addObject("Sketcher::SketchObject", "Sketch007")
body.addObject(sketch8)
sketch8.AttachmentSupport = (doc.XY_Plane, [""])
sketch8.MapMode = "FlatFace"
sketch8.AttachmentOffset = App.Placement(Vector(0, 0, 35), App.Rotation())
add_polygon(sketch8, [(7, 7), (7, -7), (-7, -7), (-7, 7)])  # lines 0-3
add_polygon(sketch8, [(-4, -4), (4, -4), (4, 4), (-4, 4)])  # lines 4-7
sketch8.addConstraint(Sketcher.Constraint("Vertical", 0))
sketch8.addConstraint(Sketcher.Constraint("Horizontal", 1))
sketch8.addConstraint(Sketcher.Constraint("Vertical", 2))
sketch8.addConstraint(Sketcher.Constraint("Horizontal", 3))
sketch8.addConstraint(Sketcher.Constraint("Horizontal", 4))
sketch8.addConstraint(Sketcher.Constraint("Vertical", 5))
sketch8.addConstraint(Sketcher.Constraint("Horizontal", 6))
sketch8.addConstraint(Sketcher.Constraint("Vertical", 7))
sketch8.addConstraint(Sketcher.Constraint("Symmetric", 0, 2, 2, 2, -1, 1))
sketch8.addConstraint(Sketcher.Constraint("Symmetric", 4, 2, 6, 2, -1, 1))
sketch8.addConstraint(Sketcher.Constraint("Equal", 3, 0))
sketch8.addConstraint(Sketcher.Constraint("Equal", 6, 5))
sketch8.addConstraint(Sketcher.Constraint("DistanceX", 1, 2, 1, 1, 14.0))
sketch8.addConstraint(Sketcher.Constraint("DistanceX", 4, 1, 4, 2, 8.0))
pad6 = doc.addObject("PartDesign::Pad", "Pad005")
body.addObject(pad6)
pad6.Profile = sketch8
pad6.Length = 4.5
pad6.Reversed = True

# Sketch on XY plane
sketch9 = doc.addObject("Sketcher::SketchObject", "Sketch008")
body.addObject(sketch9)
sketch9.AttachmentSupport = (doc.XY_Plane, [""])
sketch9.MapMode = "FlatFace"
sketch9.AttachmentOffset = App.Placement(Vector(0, 0, 35), App.Rotation())
add_polygon(sketch9, [(4, 4), (4, -4), (-4, -4), (-4, 4)])  # lines 0-3
sketch9.addConstraint(Sketcher.Constraint("Vertical", 0))
sketch9.addConstraint(Sketcher.Constraint("Horizontal", 1))
sketch9.addConstraint(Sketcher.Constraint("Vertical", 2))
sketch9.addConstraint(Sketcher.Constraint("Horizontal", 3))
sketch9.addConstraint(Sketcher.Constraint("Symmetric", 0, 2, 2, 2, -1, 1))
sketch9.addConstraint(Sketcher.Constraint("Equal", 3, 0))
sketch9.addConstraint(Sketcher.Constraint("DistanceX", 1, 2, 1, 1, 8.0))
pocket3 = doc.addObject("PartDesign::Pocket", "Pocket002")
body.addObject(pocket3)
pocket3.Profile = sketch9
pocket3.Length = 3.5
pocket3.Reversed = True

# Sketch on XY plane
sketch10 = doc.addObject("Sketcher::SketchObject", "Sketch009")
body.addObject(sketch10)
sketch10.AttachmentSupport = (doc.XY_Plane, [""])
sketch10.MapMode = "FlatFace"
sketch10.AttachmentOffset = App.Placement(Vector(0, 0, 30.5), App.Rotation())
add_polygon(sketch10, [(7, 7), (7, -7), (-7, -7), (-7, 7)])  # lines 0-3
add_polygon(sketch10, [(-4, -4), (4, -4), (4, 4), (-4, 4)])  # lines 4-7
sketch10.addConstraint(Sketcher.Constraint("Vertical", 0))
sketch10.addConstraint(Sketcher.Constraint("Horizontal", 1))
sketch10.addConstraint(Sketcher.Constraint("Vertical", 2))
sketch10.addConstraint(Sketcher.Constraint("Horizontal", 3))
sketch10.addConstraint(Sketcher.Constraint("Horizontal", 4))
sketch10.addConstraint(Sketcher.Constraint("Vertical", 5))
sketch10.addConstraint(Sketcher.Constraint("Horizontal", 6))
sketch10.addConstraint(Sketcher.Constraint("Vertical", 7))
sketch10.addConstraint(Sketcher.Constraint("Symmetric", 0, 2, 2, 2, -1, 1))
sketch10.addConstraint(Sketcher.Constraint("Symmetric", 4, 2, 6, 2, -1, 1))
sketch10.addConstraint(Sketcher.Constraint("Equal", 3, 0))
sketch10.addConstraint(Sketcher.Constraint("Equal", 6, 5))
sketch10.addConstraint(Sketcher.Constraint("DistanceX", 1, 2, 1, 1, 14.0))
sketch10.addConstraint(Sketcher.Constraint("DistanceX", 4, 1, 4, 2, 8.0))
pad7 = doc.addObject("PartDesign::Pad", "Pad006")
body.addObject(pad7)
pad7.Profile = sketch10
pad7.Length = 4
pad7.Reversed = True

# Sketch on YZ plane
sketch11 = doc.addObject("Sketcher::SketchObject", "Sketch010")
body.addObject(sketch11)
sketch11.AttachmentSupport = (doc.YZ_Plane, [""])
sketch11.MapMode = "FlatFace"
sketch11.AttachmentOffset = App.Placement(Vector(0, 0, -7), App.Rotation())
add_polygon(sketch11, [(4, 29), (-4, 29), (-4, 37), (4, 37)])  # lines 0-3
sketch11.addConstraint(Sketcher.Constraint("Horizontal", 0))
sketch11.addConstraint(Sketcher.Constraint("Vertical", 1))
sketch11.addConstraint(Sketcher.Constraint("Horizontal", 2))
sketch11.addConstraint(Sketcher.Constraint("Vertical", 3))
sketch11.addConstraint(Sketcher.Constraint("Equal", 2, 1))
sketch11.addConstraint(Sketcher.Constraint("DistanceX", 0, 2, 0, 1, 8.0))
sketch11.addConstraint(Sketcher.Constraint("DistanceX", 0, 2, -1, 1, 4.0))
sketch11.addConstraint(Sketcher.Constraint("DistanceY", -1, 1, 0, 2, 29.0))
pocket4 = doc.addObject("PartDesign::Pocket", "Pocket003")
body.addObject(pocket4)
pocket4.Profile = sketch11
pocket4.Length = 2
pocket4.Reversed = True

# Sketch on YZ plane
sketch12 = doc.addObject("Sketcher::SketchObject", "Sketch011")
body.addObject(sketch12)
sketch12.AttachmentSupport = (doc.YZ_Plane, [""])
sketch12.MapMode = "FlatFace"
sketch12.AttachmentOffset = App.Placement(Vector(0, 0, -5), App.Rotation())
sketch12.addGeometry(Part.Circle(Vector(0, 33, 0), Vector(0, 0, 1), 2.5), False)
sketch12.addConstraint(Sketcher.Constraint("PointOnObject", 0, 3, -2))
sketch12.addConstraint(Sketcher.Constraint("Diameter", 0, 5.0))
sketch12.addConstraint(Sketcher.Constraint("DistanceY", -1, 1, 0, 3, 33.0))
pocket5 = doc.addObject("PartDesign::Pocket", "Pocket004")
body.addObject(pocket5)
pocket5.Profile = sketch12
pocket5.Length = 2
pocket5.Reversed = True

# Sketch on YZ plane
sketch13 = doc.addObject("Sketcher::SketchObject", "Sketch012")
body.addObject(sketch13)
sketch13.AttachmentSupport = (doc.YZ_Plane, [""])
sketch13.MapMode = "FlatFace"
sketch13.AttachmentOffset = App.Placement(Vector(0, 0, 7), App.Rotation())
add_polygon(sketch13, [(4, 37), (-4, 37), (-4, 29), (4, 29)])  # lines 0-3
sketch13.addConstraint(Sketcher.Constraint("Horizontal", 0))
sketch13.addConstraint(Sketcher.Constraint("Vertical", 1))
sketch13.addConstraint(Sketcher.Constraint("Horizontal", 2))
sketch13.addConstraint(Sketcher.Constraint("Vertical", 3))
sketch13.addConstraint(Sketcher.Constraint("Equal", 2, 1))
sketch13.addConstraint(Sketcher.Constraint("DistanceX", 0, 2, 0, 1, 8.0))
sketch13.addConstraint(Sketcher.Constraint("DistanceX", 0, 2, -1, 1, 4.0))
sketch13.addConstraint(Sketcher.Constraint("DistanceY", -1, 1, 0, 2, 37.0))
pocket6 = doc.addObject("PartDesign::Pocket", "Pocket005")
body.addObject(pocket6)
pocket6.Profile = sketch13
pocket6.Length = 2

# Sketch on YZ plane
sketch14 = doc.addObject("Sketcher::SketchObject", "Sketch013")
body.addObject(sketch14)
sketch14.AttachmentSupport = (doc.YZ_Plane, [""])
sketch14.MapMode = "FlatFace"
sketch14.AttachmentOffset = App.Placement(Vector(0, 0, 5), App.Rotation())
sketch14.addGeometry(Part.Circle(Vector(0, 33, 0), Vector(0, 0, 1), 2.5), False)
sketch14.addConstraint(Sketcher.Constraint("PointOnObject", 0, 3, -2))
sketch14.addConstraint(Sketcher.Constraint("Diameter", 0, 5.0))
sketch14.addConstraint(Sketcher.Constraint("DistanceY", -1, 1, 0, 3, 33.0))
pocket7 = doc.addObject("PartDesign::Pocket", "Pocket006")
body.addObject(pocket7)
pocket7.Profile = sketch14
pocket7.Length = 2

# Sketch on XY plane
sketch15 = doc.addObject("Sketcher::SketchObject", "Sketch014")
body.addObject(sketch15)
sketch15.AttachmentSupport = (doc.XY_Plane, [""])
sketch15.MapMode = "FlatFace"
sketch15.AttachmentOffset = App.Placement(Vector(0, 0, 82), App.Rotation())
sketch15.addGeometry(Part.Circle(Vector(0, 0, 0), Vector(0, 0, 1), 4), False)
sketch15.addConstraint(Sketcher.Constraint("Coincident", 0, 3, -1, 1))
sketch15.addConstraint(Sketcher.Constraint("Diameter", 0, 8.0))
pad8 = doc.addObject("PartDesign::Pad", "Pad007")
body.addObject(pad8)
pad8.Profile = sketch15
pad8.Length = 12
pad8.Reversed = True

doc.recompute()
